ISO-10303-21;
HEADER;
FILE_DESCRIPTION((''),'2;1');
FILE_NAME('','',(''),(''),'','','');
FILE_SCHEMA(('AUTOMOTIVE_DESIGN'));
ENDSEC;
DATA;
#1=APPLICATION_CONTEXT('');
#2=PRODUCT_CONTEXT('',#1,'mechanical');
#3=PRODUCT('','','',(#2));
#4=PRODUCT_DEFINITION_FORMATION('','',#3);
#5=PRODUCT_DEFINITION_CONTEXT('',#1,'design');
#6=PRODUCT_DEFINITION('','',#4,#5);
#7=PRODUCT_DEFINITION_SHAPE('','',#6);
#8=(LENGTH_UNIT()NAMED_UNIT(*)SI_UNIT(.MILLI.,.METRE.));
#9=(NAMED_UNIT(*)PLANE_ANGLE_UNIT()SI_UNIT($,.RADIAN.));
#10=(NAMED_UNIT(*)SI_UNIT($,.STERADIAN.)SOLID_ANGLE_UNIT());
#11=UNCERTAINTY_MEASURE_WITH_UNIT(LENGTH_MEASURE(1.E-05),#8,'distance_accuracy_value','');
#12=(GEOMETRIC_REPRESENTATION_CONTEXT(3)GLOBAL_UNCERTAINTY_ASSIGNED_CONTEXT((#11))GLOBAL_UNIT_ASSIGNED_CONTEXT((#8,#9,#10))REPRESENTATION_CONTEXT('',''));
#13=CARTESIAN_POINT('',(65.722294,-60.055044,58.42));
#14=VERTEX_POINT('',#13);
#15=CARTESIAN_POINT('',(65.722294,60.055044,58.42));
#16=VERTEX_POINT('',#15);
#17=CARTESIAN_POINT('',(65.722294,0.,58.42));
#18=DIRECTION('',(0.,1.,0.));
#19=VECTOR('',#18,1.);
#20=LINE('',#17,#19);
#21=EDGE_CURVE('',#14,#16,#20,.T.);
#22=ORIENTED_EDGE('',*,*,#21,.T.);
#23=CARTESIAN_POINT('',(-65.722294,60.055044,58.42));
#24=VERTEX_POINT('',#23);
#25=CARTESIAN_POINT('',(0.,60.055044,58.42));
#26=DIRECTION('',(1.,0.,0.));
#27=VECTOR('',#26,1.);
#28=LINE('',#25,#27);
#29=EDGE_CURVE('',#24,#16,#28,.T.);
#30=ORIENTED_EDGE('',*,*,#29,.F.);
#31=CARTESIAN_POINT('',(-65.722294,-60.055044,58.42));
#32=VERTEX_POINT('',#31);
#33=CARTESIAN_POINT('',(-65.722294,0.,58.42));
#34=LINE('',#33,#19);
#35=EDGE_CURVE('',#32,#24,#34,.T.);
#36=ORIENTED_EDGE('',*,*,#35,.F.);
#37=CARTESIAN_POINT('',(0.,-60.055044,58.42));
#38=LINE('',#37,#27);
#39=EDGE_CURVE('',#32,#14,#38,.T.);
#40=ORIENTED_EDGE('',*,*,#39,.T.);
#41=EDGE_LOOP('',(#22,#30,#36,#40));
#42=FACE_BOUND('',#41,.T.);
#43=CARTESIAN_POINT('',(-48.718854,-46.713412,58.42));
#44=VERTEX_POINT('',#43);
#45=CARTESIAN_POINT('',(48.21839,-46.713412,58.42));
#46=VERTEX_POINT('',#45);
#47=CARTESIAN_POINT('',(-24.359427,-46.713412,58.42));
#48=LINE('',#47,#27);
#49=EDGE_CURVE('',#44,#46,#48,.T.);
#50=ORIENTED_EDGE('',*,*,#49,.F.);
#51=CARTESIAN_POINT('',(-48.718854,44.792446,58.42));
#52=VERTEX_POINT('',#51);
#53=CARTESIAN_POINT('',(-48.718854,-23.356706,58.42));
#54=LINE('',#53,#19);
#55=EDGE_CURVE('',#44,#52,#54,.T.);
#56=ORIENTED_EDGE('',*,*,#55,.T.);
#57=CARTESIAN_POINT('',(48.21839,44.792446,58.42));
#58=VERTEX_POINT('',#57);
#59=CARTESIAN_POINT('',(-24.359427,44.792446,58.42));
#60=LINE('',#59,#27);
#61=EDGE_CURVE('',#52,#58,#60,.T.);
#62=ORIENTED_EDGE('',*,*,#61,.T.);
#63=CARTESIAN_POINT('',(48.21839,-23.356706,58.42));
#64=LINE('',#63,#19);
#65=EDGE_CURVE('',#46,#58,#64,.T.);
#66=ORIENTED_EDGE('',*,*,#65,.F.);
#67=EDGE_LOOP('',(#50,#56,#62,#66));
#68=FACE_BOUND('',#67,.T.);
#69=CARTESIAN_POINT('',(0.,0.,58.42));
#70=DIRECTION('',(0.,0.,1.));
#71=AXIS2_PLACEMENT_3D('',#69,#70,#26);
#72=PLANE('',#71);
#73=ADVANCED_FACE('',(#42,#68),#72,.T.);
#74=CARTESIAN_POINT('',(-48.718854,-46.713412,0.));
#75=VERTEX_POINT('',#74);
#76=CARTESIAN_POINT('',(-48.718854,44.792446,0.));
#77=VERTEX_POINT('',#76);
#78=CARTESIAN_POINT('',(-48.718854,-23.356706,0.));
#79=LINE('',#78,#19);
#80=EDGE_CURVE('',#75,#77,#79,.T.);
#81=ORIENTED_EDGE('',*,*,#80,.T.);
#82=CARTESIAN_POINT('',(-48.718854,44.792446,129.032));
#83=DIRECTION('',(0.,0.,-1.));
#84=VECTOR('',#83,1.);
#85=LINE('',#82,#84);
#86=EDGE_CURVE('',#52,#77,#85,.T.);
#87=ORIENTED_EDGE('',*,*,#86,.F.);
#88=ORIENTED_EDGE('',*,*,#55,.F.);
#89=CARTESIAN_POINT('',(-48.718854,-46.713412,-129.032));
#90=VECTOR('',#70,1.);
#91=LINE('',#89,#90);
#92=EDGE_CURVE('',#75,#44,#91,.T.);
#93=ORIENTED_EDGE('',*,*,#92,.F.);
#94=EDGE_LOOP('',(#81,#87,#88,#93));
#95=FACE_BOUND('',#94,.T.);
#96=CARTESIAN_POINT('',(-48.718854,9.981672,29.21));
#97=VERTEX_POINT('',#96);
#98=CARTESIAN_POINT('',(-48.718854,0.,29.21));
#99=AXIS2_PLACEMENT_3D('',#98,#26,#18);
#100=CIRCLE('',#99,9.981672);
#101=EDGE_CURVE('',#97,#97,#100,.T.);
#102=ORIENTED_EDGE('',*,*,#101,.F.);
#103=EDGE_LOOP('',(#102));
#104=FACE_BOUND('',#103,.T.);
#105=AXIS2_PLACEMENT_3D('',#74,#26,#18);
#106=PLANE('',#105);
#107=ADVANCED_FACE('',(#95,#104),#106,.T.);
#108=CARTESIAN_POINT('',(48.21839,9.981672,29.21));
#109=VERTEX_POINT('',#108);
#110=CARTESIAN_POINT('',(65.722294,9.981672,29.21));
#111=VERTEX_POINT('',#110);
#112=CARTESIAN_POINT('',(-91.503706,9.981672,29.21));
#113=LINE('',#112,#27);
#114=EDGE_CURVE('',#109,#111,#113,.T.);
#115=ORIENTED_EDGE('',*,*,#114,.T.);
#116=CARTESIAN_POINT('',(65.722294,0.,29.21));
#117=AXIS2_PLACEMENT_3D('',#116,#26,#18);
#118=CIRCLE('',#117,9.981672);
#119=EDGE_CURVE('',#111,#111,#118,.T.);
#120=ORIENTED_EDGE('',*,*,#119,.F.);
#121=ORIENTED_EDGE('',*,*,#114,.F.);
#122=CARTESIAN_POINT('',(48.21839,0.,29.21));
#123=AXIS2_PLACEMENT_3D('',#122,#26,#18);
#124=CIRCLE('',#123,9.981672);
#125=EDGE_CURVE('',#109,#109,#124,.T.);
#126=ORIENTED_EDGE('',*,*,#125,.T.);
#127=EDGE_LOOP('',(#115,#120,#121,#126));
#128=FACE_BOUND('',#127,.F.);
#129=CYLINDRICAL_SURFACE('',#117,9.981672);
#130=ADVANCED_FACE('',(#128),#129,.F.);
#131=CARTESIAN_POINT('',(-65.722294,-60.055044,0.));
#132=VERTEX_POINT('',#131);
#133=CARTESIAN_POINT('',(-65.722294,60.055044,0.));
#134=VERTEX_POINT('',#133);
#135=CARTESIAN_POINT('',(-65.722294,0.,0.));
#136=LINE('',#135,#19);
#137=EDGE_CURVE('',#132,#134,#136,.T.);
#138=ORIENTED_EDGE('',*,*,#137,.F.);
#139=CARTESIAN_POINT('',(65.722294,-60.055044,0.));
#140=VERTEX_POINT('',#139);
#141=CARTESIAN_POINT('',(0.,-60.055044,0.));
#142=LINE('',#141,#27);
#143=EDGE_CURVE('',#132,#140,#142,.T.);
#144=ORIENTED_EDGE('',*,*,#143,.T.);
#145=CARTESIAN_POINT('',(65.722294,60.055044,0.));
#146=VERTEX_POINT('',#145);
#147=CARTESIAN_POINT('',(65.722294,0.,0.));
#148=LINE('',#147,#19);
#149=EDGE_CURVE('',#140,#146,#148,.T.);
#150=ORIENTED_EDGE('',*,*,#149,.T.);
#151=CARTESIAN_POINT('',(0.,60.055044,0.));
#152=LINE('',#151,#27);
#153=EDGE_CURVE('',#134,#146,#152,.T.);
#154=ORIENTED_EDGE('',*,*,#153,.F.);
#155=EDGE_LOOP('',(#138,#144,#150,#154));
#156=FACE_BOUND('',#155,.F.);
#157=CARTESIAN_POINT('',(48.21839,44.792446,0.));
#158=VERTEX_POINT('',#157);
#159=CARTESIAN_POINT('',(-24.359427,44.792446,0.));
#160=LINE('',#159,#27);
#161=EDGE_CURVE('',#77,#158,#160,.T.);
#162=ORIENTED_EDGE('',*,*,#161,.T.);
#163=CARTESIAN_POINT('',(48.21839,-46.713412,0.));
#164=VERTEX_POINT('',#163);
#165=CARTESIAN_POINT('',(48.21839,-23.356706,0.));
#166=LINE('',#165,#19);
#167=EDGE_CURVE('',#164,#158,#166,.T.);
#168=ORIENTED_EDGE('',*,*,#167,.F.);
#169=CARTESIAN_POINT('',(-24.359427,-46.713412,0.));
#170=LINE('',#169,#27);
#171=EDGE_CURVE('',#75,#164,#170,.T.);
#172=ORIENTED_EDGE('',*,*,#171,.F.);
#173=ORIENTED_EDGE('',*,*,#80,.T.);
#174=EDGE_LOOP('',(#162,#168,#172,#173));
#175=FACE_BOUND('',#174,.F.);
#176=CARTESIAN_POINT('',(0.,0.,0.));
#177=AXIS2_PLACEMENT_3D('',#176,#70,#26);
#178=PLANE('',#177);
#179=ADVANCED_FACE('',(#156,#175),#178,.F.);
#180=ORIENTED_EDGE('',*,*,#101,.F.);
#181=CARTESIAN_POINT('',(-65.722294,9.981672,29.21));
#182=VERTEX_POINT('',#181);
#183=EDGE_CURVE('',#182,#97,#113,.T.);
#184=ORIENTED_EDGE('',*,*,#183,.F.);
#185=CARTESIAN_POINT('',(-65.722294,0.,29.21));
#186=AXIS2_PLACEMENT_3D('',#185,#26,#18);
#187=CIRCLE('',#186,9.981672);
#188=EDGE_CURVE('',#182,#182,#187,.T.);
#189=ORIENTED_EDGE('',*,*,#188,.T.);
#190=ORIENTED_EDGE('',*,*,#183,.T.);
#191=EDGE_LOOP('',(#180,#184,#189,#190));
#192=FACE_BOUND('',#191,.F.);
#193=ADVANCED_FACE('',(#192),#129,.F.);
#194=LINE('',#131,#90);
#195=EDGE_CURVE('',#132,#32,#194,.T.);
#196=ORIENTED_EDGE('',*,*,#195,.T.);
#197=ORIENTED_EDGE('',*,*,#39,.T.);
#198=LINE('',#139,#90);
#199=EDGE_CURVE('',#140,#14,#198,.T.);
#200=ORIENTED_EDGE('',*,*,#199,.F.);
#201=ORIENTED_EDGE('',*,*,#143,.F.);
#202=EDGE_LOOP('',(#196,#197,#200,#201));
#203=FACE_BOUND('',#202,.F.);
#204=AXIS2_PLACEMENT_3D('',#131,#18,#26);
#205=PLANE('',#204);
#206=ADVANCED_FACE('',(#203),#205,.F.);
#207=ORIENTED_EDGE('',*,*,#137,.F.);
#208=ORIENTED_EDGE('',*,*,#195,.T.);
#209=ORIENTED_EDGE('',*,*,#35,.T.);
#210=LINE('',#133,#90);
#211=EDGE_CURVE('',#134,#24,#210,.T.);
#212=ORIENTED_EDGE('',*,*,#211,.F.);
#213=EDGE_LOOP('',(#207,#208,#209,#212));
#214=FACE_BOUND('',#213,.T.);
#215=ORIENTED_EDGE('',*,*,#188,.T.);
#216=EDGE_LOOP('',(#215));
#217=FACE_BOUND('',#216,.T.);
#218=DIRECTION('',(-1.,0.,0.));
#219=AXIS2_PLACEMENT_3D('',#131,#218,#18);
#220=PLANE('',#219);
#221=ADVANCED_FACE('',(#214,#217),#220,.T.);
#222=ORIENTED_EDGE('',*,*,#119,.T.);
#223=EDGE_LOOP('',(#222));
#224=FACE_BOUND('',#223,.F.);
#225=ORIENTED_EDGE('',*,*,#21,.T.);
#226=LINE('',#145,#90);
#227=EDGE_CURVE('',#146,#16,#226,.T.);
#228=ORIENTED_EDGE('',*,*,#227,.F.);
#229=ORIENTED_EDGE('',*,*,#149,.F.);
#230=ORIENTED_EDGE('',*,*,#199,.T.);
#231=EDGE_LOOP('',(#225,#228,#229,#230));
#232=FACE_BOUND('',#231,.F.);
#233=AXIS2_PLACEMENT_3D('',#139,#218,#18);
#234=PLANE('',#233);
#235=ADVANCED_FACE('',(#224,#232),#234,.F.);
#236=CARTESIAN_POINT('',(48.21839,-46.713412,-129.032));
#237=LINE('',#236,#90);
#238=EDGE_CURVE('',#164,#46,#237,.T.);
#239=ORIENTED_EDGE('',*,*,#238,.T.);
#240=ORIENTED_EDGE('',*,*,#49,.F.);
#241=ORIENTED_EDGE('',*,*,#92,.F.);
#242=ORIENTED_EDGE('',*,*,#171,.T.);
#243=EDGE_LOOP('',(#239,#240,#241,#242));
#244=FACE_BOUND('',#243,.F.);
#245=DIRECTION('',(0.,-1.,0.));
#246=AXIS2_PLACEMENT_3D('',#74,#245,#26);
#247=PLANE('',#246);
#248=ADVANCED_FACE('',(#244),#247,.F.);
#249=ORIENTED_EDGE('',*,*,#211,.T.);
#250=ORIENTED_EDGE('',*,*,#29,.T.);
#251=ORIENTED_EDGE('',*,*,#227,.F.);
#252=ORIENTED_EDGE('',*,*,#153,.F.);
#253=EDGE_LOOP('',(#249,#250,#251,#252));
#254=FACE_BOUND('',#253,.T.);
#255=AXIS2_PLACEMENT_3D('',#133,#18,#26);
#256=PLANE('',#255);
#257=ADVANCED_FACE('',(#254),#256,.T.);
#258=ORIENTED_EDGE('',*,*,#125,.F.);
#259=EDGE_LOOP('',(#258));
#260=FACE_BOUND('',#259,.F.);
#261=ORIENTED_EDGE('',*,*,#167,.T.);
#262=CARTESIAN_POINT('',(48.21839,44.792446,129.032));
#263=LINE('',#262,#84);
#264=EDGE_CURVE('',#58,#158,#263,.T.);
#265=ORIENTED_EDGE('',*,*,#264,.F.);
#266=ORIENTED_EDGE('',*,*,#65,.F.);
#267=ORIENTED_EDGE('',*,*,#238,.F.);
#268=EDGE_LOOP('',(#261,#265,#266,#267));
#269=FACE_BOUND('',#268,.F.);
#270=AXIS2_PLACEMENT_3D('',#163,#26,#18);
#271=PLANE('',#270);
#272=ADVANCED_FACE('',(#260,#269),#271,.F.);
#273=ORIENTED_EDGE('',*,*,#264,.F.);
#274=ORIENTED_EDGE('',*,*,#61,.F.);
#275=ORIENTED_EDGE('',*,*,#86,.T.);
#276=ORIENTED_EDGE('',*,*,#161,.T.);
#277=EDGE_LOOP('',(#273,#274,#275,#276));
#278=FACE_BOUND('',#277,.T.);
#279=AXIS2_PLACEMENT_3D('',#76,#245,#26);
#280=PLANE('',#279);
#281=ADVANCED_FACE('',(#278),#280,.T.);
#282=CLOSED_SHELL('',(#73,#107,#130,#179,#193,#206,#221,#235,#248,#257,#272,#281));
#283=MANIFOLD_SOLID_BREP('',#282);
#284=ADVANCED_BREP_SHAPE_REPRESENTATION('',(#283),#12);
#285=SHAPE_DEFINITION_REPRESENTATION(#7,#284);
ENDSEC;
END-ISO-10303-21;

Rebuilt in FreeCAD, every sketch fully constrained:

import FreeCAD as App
import Part
import Sketcher
from FreeCAD import Vector
Q = App.Units.Quantity

doc = App.newDocument("Part")
params = doc.addObject("Spreadsheet::Sheet", "Params")
for row, (alias, value) in enumerate([
    ("pad1_length", "2.3 in"),
    ("pocket1_length", "12.38 in"),
    ("pocket2_length", "10.16 in"),
], start=1):
    params.set(f"A{row}", alias)
    params.set(f"B{row}", "=" + value)
    params.setAlias(f"B{row}", alias)

body = doc.addObject("PartDesign::Body", "Body")

# Sketch on XY plane
sketch1 = body.newObject("Sketcher::SketchObject", "Sketch")
sketch1.AttachmentSupport = (doc.getObject("XY_Plane"), [""])
sketch1.MapMode = "FlatFace"
sketch1.addGeometry([
    Part.LineSegment(Vector(-66, 60, 0), Vector(-66, -60, 0)),
    Part.LineSegment(Vector(-66, -60, 0), Vector(66, -60, 0)),
    Part.LineSegment(Vector(66, -60, 0), Vector(66, 60, 0)),
    Part.LineSegment(Vector(66, 60, 0), Vector(-66, 60, 0)),
], False)
sketch1.addConstraint([
    Sketcher.Constraint("Coincident", 0, 2, 1, 1),
    Sketcher.Constraint("Coincident", 1, 2, 2, 1),
    Sketcher.Constraint("Coincident", 2, 2, 3, 1),
    Sketcher.Constraint("Coincident", 3, 2, 0, 1),
    Sketcher.Constraint("Vertical", 0),
    Sketcher.Constraint("Horizontal", 1),
    Sketcher.Constraint("Vertical", 2),
    Sketcher.Constraint("Horizontal", 3),
    Sketcher.Constraint("Symmetric", 0, 2, 2, 2, -1, 1),
    Sketcher.Constraint("DistanceX", 1, 1, 1, 2, Q("131.444588 mm")),
    Sketcher.Constraint("DistanceY", 0, 2, 0, 1, Q("120.110088 mm")),
])
pad1 = body.newObject("PartDesign::Pad", "Pad")
pad1.Profile = sketch1
pad1.setExpression("Length", "Params.pad1_length")

# Sketch on YZ plane
sketch2 = body.newObject("Sketcher::SketchObject", "Sketch001")
sketch2.AttachmentSupport = (doc.getObject("YZ_Plane"), [""])
sketch2.MapMode = "FlatFace"
sketch2.AttachmentOffset = App.Placement(Vector(0, 0, 65.722294), App.Rotation())
sketch2.addGeometry(Part.Circle(Vector(0, 29, 0), Vector(0, 0, 1), 10), False)
sketch2.addConstraint([
    Sketcher.Constraint("PointOnObject", 0, 3, -2),
    Sketcher.Constraint("DistanceY", -1, 1, 0, 3, Q("1.15 in")),
    Sketcher.Constraint("Diameter", 0, Q("19.963344 mm")),
])
pocket1 = body.newObject("PartDesign::Pocket", "Pocket")
pocket1.Profile = sketch2
pocket1.setExpression("Length", "Params.pocket1_length")
pocket1.Midplane = True

# Sketch on XY plane
sketch3 = body.newObject("Sketcher::SketchObject", "Sketch002")
sketch3.AttachmentSupport = (doc.getObject("XY_Plane"), [""])
sketch3.MapMode = "FlatFace"
sketch3.addGeometry([
    Part.LineSegment(Vector(-49, 45, 0), Vector(-49, -47, 0)),
    Part.LineSegment(Vector(-49, -47, 0), Vector(48, -47, 0)),
    Part.LineSegment(Vector(48, -47, 0), Vector(48, 45, 0)),
    Part.LineSegment(Vector(48, 45, 0), Vector(-49, 45, 0)),
], False)
sketch3.addConstraint([
    Sketcher.Constraint("Coincident", 0, 2, 1, 1),
    Sketcher.Constraint("Coincident", 1, 2, 2, 1),
    Sketcher.Constraint("Coincident", 2, 2, 3, 1),
    Sketcher.Constraint("Coincident", 3, 2, 0, 1),
    Sketcher.Constraint("Vertical", 0),
    Sketcher.Constraint("Horizontal", 1),
    Sketcher.Constraint("Vertical", 2),
    Sketcher.Constraint("Horizontal", 3),
    Sketcher.Constraint("DistanceY", 0, 2, 0, 1, Q("91.505859 mm")),
    Sketcher.Constraint("DistanceX", 1, 1, 1, 2, Q("96.937245 mm")),
    Sketcher.Constraint("DistanceX", -1, 1, 1, 2, Q("48.21839 mm")),
    Sketcher.Constraint("DistanceY", 0, 2, -1, 1, Q("46.713412 mm")),
])
pocket2 = body.newObject("PartDesign::Pocket", "Pocket001")
pocket2.Profile = sketch3
pocket2.setExpression("Length", "Params.pocket2_length")
pocket2.Midplane = True

doc.recompute()
